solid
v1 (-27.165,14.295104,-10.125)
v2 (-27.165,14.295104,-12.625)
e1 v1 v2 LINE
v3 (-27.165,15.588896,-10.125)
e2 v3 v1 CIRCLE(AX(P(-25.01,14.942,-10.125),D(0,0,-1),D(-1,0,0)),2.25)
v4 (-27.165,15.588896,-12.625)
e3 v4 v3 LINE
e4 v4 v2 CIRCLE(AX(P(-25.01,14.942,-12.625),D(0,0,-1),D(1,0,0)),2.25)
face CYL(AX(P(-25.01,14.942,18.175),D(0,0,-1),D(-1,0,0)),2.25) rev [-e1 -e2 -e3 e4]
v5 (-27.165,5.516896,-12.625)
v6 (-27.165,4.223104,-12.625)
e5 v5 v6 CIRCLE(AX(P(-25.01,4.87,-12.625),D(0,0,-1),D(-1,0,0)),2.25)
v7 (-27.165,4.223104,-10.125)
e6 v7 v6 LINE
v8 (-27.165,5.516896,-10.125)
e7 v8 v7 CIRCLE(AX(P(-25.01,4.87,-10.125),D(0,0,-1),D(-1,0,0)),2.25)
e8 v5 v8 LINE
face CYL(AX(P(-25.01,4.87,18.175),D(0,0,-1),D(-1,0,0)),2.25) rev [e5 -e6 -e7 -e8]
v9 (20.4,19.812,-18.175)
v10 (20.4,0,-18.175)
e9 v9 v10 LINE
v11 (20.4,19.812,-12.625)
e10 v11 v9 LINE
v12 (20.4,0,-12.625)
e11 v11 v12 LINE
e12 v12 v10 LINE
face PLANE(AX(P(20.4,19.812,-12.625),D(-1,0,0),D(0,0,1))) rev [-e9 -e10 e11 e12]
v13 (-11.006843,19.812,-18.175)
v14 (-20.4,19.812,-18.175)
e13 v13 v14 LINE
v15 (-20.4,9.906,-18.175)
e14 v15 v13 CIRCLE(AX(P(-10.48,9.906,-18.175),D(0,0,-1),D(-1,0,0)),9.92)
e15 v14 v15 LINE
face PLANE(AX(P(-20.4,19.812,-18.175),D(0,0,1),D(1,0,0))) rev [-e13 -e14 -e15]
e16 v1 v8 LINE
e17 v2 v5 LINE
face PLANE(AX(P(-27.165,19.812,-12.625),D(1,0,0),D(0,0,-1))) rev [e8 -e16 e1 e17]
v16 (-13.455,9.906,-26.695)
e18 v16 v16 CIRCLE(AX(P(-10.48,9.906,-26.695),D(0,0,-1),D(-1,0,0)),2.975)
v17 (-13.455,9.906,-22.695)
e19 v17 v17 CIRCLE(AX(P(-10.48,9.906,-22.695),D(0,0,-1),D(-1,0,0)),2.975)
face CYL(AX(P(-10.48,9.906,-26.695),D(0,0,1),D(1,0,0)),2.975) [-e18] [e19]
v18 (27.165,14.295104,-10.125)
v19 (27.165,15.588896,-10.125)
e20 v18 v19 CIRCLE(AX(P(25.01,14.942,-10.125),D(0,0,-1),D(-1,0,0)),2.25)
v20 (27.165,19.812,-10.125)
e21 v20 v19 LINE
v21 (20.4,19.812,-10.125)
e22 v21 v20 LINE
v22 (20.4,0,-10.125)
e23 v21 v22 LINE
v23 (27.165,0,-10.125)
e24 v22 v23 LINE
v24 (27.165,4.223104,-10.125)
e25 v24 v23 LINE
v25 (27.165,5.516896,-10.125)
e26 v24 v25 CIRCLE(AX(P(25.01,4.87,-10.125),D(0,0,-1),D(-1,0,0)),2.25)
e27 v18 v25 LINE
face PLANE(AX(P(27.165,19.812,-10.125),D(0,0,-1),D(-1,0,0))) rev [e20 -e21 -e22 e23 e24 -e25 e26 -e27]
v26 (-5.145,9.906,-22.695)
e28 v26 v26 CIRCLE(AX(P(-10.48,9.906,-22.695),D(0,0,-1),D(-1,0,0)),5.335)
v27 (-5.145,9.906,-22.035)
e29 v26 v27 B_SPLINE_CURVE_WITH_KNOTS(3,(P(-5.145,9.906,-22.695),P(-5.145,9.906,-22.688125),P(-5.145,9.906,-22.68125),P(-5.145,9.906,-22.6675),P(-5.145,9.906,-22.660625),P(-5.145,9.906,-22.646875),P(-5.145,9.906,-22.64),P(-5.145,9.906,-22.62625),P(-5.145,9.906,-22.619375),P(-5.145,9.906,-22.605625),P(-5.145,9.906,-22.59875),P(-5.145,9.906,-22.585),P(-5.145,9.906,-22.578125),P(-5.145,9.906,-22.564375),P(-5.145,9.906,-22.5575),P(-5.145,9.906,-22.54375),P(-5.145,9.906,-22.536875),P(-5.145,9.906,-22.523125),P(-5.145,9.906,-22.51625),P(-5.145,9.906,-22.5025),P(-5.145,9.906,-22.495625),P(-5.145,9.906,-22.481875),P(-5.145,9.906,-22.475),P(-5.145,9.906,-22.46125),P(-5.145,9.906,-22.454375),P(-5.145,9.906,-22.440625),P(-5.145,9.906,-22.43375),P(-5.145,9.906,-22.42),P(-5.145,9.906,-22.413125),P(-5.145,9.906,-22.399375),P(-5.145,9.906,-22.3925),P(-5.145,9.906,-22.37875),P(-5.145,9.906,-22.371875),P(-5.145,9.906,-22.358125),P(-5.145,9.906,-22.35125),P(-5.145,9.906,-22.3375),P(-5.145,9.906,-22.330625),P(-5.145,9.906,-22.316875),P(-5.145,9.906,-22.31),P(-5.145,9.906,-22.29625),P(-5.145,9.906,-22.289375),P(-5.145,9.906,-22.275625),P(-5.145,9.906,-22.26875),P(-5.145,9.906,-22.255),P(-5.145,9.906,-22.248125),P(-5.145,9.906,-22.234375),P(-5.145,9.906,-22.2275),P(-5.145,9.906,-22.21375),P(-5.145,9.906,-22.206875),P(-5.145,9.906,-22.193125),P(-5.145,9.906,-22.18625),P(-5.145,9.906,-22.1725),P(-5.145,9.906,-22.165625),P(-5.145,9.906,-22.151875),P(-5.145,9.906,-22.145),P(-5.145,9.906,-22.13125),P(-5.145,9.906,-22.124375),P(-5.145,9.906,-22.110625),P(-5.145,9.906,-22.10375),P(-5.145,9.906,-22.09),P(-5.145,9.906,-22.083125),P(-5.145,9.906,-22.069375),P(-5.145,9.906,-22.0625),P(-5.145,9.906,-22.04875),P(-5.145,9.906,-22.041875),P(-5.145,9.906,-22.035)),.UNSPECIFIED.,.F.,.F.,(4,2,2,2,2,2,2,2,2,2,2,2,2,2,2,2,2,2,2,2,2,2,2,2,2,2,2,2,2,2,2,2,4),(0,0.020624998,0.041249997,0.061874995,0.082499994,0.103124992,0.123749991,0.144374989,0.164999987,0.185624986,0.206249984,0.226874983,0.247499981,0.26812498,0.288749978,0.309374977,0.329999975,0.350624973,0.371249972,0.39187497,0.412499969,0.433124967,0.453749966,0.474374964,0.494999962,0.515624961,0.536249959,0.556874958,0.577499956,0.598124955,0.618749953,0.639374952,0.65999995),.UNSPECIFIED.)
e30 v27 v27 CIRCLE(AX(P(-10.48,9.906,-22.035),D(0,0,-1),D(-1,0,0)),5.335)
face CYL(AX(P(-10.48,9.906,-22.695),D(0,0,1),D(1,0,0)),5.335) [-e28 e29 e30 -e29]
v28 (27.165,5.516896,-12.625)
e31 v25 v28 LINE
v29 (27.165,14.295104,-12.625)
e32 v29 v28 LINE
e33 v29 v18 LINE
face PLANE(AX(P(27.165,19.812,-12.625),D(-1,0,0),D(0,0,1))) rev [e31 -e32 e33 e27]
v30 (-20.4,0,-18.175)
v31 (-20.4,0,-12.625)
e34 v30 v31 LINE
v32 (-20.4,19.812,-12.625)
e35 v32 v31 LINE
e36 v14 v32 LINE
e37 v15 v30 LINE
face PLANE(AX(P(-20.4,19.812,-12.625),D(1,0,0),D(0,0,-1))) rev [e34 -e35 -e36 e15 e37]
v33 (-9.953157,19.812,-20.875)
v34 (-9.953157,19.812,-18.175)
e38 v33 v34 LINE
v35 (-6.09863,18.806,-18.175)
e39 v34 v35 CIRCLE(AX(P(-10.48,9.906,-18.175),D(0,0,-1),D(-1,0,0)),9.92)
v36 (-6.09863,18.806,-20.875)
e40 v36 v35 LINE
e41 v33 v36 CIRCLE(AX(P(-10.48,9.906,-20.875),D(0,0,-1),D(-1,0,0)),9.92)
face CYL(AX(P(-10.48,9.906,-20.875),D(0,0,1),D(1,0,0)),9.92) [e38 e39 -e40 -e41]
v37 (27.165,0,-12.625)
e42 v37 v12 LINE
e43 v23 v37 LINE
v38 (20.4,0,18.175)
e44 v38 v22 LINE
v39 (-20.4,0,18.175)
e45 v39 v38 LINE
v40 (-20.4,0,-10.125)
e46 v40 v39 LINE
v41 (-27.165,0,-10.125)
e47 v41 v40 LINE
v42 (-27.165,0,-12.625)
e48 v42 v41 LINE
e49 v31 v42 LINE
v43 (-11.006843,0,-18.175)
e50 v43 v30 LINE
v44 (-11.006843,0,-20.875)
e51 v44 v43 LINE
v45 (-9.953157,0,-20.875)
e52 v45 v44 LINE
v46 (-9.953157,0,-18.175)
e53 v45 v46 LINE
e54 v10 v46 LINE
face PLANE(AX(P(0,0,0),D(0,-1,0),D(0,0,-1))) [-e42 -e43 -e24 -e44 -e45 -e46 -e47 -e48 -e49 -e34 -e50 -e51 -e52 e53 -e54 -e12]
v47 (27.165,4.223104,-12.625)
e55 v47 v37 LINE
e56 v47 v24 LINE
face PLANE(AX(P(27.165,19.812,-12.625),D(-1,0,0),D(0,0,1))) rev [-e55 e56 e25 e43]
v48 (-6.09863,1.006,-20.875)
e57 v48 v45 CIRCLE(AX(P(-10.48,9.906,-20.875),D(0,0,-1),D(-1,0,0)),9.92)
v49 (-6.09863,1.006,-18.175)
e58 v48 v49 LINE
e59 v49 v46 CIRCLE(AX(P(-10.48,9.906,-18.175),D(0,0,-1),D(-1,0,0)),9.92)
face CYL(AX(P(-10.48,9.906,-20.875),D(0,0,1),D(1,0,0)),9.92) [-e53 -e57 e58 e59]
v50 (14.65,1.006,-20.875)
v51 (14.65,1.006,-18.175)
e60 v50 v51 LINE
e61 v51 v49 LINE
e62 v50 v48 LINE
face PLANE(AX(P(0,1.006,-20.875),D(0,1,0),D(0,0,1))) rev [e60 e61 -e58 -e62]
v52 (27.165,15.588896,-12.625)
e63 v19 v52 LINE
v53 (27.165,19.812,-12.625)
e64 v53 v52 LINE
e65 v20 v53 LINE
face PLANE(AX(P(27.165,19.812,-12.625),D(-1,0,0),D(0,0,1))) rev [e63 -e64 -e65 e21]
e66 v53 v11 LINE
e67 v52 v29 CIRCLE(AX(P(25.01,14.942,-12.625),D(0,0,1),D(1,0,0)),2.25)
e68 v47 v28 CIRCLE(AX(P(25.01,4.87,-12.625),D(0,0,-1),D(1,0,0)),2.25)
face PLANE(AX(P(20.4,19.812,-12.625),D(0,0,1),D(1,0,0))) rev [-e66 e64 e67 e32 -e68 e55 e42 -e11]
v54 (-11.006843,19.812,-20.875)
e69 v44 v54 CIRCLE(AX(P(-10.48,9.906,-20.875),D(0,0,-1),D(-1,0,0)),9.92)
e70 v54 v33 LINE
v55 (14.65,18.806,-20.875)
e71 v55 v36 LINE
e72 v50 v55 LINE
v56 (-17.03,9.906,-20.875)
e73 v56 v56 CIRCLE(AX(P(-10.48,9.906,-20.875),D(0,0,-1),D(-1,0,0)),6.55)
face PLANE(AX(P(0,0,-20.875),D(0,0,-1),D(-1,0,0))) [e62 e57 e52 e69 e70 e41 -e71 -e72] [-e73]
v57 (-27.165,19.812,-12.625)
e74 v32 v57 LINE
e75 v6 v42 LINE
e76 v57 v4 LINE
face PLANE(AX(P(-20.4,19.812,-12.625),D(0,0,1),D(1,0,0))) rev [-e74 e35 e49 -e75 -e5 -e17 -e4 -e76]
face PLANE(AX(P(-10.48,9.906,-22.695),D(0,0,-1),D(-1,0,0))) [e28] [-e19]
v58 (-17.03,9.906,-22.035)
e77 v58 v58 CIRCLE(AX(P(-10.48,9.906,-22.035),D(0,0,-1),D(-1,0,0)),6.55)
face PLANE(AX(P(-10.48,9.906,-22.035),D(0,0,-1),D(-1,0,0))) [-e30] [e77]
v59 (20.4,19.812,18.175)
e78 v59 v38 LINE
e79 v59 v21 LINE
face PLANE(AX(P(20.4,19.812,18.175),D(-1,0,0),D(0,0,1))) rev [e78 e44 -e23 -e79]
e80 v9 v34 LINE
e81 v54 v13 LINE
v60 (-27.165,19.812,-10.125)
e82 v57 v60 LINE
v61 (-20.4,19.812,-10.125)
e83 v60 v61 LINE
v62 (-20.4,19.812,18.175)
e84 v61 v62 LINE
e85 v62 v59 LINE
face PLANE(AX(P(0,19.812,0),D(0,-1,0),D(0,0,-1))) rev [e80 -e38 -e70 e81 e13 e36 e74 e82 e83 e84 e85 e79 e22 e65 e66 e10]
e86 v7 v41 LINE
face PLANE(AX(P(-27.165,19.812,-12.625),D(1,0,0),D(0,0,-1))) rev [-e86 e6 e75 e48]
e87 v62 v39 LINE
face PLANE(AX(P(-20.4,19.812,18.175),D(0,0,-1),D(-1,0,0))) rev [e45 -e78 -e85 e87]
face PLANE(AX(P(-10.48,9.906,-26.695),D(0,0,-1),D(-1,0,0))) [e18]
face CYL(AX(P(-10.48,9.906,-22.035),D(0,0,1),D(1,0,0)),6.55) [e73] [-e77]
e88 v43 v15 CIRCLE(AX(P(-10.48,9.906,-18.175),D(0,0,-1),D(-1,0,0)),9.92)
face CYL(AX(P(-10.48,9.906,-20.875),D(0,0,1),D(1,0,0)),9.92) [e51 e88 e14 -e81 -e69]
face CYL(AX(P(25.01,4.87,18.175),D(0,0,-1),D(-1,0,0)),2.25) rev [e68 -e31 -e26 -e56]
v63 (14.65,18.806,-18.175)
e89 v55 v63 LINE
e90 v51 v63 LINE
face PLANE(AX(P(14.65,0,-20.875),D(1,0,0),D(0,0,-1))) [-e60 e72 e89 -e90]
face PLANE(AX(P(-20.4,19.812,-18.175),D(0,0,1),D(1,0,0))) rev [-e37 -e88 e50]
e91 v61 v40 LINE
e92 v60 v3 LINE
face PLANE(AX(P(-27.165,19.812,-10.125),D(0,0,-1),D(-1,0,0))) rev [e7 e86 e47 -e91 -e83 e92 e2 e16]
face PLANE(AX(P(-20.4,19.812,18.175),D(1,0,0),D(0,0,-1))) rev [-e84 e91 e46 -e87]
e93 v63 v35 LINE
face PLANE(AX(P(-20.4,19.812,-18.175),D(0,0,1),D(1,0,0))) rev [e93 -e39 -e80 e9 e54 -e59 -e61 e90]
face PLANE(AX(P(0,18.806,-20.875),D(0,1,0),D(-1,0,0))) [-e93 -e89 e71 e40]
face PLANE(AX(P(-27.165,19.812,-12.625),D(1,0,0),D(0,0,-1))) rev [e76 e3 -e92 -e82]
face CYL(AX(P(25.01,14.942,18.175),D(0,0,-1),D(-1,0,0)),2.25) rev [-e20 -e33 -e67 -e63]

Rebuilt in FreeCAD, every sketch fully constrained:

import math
import FreeCAD as App
import Part
import Sketcher
Q = App.Units.Quantity

doc = App.newDocument("Part")
body = doc.addObject("PartDesign::Body", "Body")

# Sketch on XZ plane
sketch1 = body.newObject("Sketcher::SketchObject", "Sketch")
sketch1.AttachmentSupport = (doc.getObject("XZ_Plane"), [""])
sketch1.MapMode = "FlatFace"
sketch1.addGeometry([
    Part.LineSegment(App.Vector(-20.4, 18.175, 0), App.Vector(20.4, 18.175, 0)),  # 0
    Part.LineSegment(App.Vector(20.4, 18.175, 0), App.Vector(20.4, -10.125, 0)),  # 1
    Part.LineSegment(App.Vector(20.4, -10.125, 0), App.Vector(27.165, -10.125, 0)),  # 2
    Part.LineSegment(App.Vector(27.165, -10.125, 0), App.Vector(27.165, -12.625, 0)),  # 3
    Part.LineSegment(App.Vector(27.165, -12.625, 0), App.Vector(20.4, -12.625, 0)),  # 4
    Part.LineSegment(App.Vector(20.4, -12.625, 0), App.Vector(20.4, -18.175, 0)),  # 5
    Part.LineSegment(App.Vector(20.4, -18.175, 0), App.Vector(-20.4, -18.175, 0)),  # 6
    Part.LineSegment(App.Vector(-20.4, -18.175, 0), App.Vector(-20.4, -12.625, 0)),  # 7
    Part.LineSegment(App.Vector(-20.4, -12.625, 0), App.Vector(-27.165, -12.625, 0)),  # 8
    Part.LineSegment(App.Vector(-27.165, -12.625, 0), App.Vector(-27.165, -10.125, 0)),  # 9
    Part.LineSegment(App.Vector(-27.165, -10.125, 0), App.Vector(-20.4, -10.125, 0)),  # 10
    Part.LineSegment(App.Vector(-20.4, -10.125, 0), App.Vector(-20.4, 18.175, 0)),  # 11
], False)
sketch1.addConstraint([
    Sketcher.Constraint("Coincident", 0, 2, 1, 1),
    Sketcher.Constraint("Coincident", 1, 2, 2, 1),
    Sketcher.Constraint("Coincident", 2, 2, 3, 1),
    Sketcher.Constraint("Coincident", 3, 2, 4, 1),
    Sketcher.Constraint("Coincident", 4, 2, 5, 1),
    Sketcher.Constraint("Coincident", 5, 2, 6, 1),
    Sketcher.Constraint("Coincident", 6, 2, 7, 1),
    Sketcher.Constraint("Coincident", 7, 2, 8, 1),
    Sketcher.Constraint("Coincident", 8, 2, 9, 1),
    Sketcher.Constraint("Coincident", 9, 2, 10, 1),
    Sketcher.Constraint("Coincident", 10, 2, 11, 1),
    Sketcher.Constraint("Coincident", 11, 2, 0, 1),
    Sketcher.Constraint("Horizontal", 0),
    Sketcher.Constraint("Vertical", 1),
    Sketcher.Constraint("Horizontal", 2),
    Sketcher.Constraint("Vertical", 3),
    Sketcher.Constraint("Horizontal", 4),
    Sketcher.Constraint("Vertical", 5),
    Sketcher.Constraint("Horizontal", 6),
    Sketcher.Constraint("Vertical", 7),
    Sketcher.Constraint("Horizontal", 8),
    Sketcher.Constraint("Vertical", 9),
    Sketcher.Constraint("Horizontal", 10),
    Sketcher.Constraint("Vertical", 11),
    Sketcher.Constraint("Symmetric", 0, 2, 6, 2, -1, 1),
    Sketcher.Constraint("Symmetric", 4, 2, 7, 2, -2),
    Sketcher.Constraint("Symmetric", 2, 2, 9, 2, -2),
    Sketcher.Constraint("Vertical", 7, 2, 10, 2),
    Sketcher.Constraint("DistanceX", 0, 1, 0, 2, Q("40.8 mm")),
    Sketcher.Constraint("DistanceY", 1, 2, 1, 1, Q("28.3 mm")),
    Sketcher.Constraint("DistanceY", 3, 2, 3, 1, Q("2.5 mm")),
    Sketcher.Constraint("DistanceY", 5, 2, 5, 1, Q("5.55 mm")),
    Sketcher.Constraint("DistanceX", 2, 1, 2, 2, Q("6.765 mm")),
])
pad1 = body.newObject("PartDesign::Pad", "Pad")
pad1.Profile = sketch1
pad1.Length = 19.812
pad1.Reversed = True

# Sketch on XY plane
sketch2 = body.newObject("Sketcher::SketchObject", "Sketch001")
sketch2.AttachmentSupport = (doc.getObject("XY_Plane"), [""])
sketch2.MapMode = "FlatFace"
sketch2.AttachmentOffset = App.Placement(App.Vector(0, 0, -12.625), App.Rotation())
sketch2.addGeometry([
    Part.Circle(App.Vector(-25.01, 4.87, 0), App.Vector(0, 0, 1), 2.25),
    Part.Circle(App.Vector(-25.01, 14.942, 0), App.Vector(0, 0, 1), 2.25),
    Part.Circle(App.Vector(25.01, 4.87, 0), App.Vector(0, 0, 1), 2.25),
    Part.Circle(App.Vector(25.01, 14.942, 0), App.Vector(0, 0, 1), 2.25),
], False)
sketch2.addConstraint([
    Sketcher.Constraint("Equal", 0, 1),
    Sketcher.Constraint("Equal", 1, 2),
    Sketcher.Constraint("Equal", 2, 3),
    Sketcher.Constraint("Symmetric", 0, 3, 2, 3, -2),
    Sketcher.Constraint("Symmetric", 1, 3, 3, 3, -2),
    Sketcher.Constraint("Vertical", 0, 3, 1, 3),
    Sketcher.Constraint("Diameter", 0, Q("4.5 mm")),
    Sketcher.Constraint("DistanceX", 0, 3, -1, 1, Q("25.01 mm")),
    Sketcher.Constraint("DistanceY", -1, 1, 0, 3, Q("4.87 mm")),
    Sketcher.Constraint("DistanceY", -1, 1, 1, 3, Q("14.942 mm")),
])
pocket1 = body.newObject("PartDesign::Pocket", "Pocket")
pocket1.Profile = sketch2
pocket1.Type = "ThroughAll"
pocket1.Reversed = True

# Sketch on XY plane
sketch3 = body.newObject("Sketcher::SketchObject", "Sketch002")
sketch3.AttachmentSupport = (doc.getObject("XY_Plane"), [""])
sketch3.MapMode = "FlatFace"
sketch3.AttachmentOffset = App.Placement(App.Vector(0, 0, -18.175), App.Rotation())
sketch3.addGeometry([
    Part.LineSegment(App.Vector(14.65, 18.806, 0), App.Vector(14.65, 1.006, 0)),  # 0
    Part.LineSegment(App.Vector(14.65, 1.006, 0), App.Vector(-6.09863, 1.006, 0)),  # 1
    Part.ArcOfCircle(Part.Circle(App.Vector(-10.48, 9.906, 0), App.Vector(0, 0, 1), 9.92), math.radians(-86.955634), math.radians(-63.789497)),  # 2
    Part.LineSegment(App.Vector(-9.953157, 0, 0), App.Vector(-11.006843, 0, 0)),  # 3
    Part.ArcOfCircle(Part.Circle(App.Vector(-10.48, 9.906, 0), App.Vector(0, 0, 1), 9.92), math.radians(-180), math.radians(-93.044366)),  # 4
    Part.ArcOfCircle(Part.Circle(App.Vector(-10.48, 9.906, 0), App.Vector(0, 0, 1), 9.92), math.radians(93.044366), math.radians(180)),  # 5
    Part.LineSegment(App.Vector(-11.006843, 19.812, 0), App.Vector(-9.953157, 19.812, 0)),  # 6
    Part.ArcOfCircle(Part.Circle(App.Vector(-10.48, 9.906, 0), App.Vector(0, 0, 1), 9.92), math.radians(63.789497), math.radians(86.955634)),  # 7
    Part.LineSegment(App.Vector(-6.09863, 18.806, 0), App.Vector(14.65, 18.806, 0)),  # 8
], False)
sketch3.addConstraint([
    Sketcher.Constraint("Coincident", 0, 2, 1, 1),
    Sketcher.Constraint("Coincident", 1, 2, 2, 2),
    Sketcher.Constraint("Coincident", 2, 1, 3, 1),
    Sketcher.Constraint("Coincident", 3, 2, 4, 2),
    Sketcher.Constraint("Tangent", 4, 1, 5, 2),
    Sketcher.Constraint("Coincident", 5, 1, 6, 1),
    Sketcher.Constraint("Coincident", 6, 2, 7, 2),
    Sketcher.Constraint("Coincident", 7, 1, 8, 1),
    Sketcher.Constraint("Coincident", 8, 2, 0, 1),
    Sketcher.Constraint("Vertical", 0),
    Sketcher.Constraint("Horizontal", 1),
    Sketcher.Constraint("Horizontal", 3),
    Sketcher.Constraint("Horizontal", 6),
    Sketcher.Constraint("Horizontal", 8),
    Sketcher.Constraint("Coincident", 4, 3, 2, 3),
    Sketcher.Constraint("Coincident", 7, 3, 2, 3),
    Sketcher.Constraint("Equal", 2, 4),
    Sketcher.Constraint("Equal", 4, 5),
    Sketcher.Constraint("Equal", 5, 7),
    Sketcher.Constraint("PointOnObject", 2, 1, -1),
    Sketcher.Constraint("Horizontal", 7, 3, 4, 1),
    Sketcher.Constraint("Vertical", 3, 2, 5, 1),
    Sketcher.Constraint("Vertical", 1, 2, 7, 1),
    Sketcher.Constraint("Radius", 2, Q("9.92 mm")),
    Sketcher.Constraint("DistanceY", 0, 2, 0, 1, Q("17.8 mm")),
    Sketcher.Constraint("DistanceX", 4, 1, -1, 1, Q("20.4 mm")),
    Sketcher.Constraint("DistanceX", -1, 1, 0, 2, Q("14.65 mm")),
    Sketcher.Constraint("DistanceY", -1, 1, 2, 3, Q("9.906 mm")),
])
pad2 = body.newObject("PartDesign::Pad", "Pad001")
pad2.Profile = sketch3
pad2.Length = 2.7
pad2.Reversed = True

# Sketch on XY plane
sketch4 = body.newObject("Sketcher::SketchObject", "Sketch003")
sketch4.AttachmentSupport = (doc.getObject("XY_Plane"), [""])
sketch4.MapMode = "FlatFace"
sketch4.AttachmentOffset = App.Placement(App.Vector(0, 0, -20.875), App.Rotation())
sketch4.addGeometry(Part.Circle(App.Vector(-10.48, 9.906, 0), App.Vector(0, 0, 1), 6.55), False)
sketch4.addConstraint([
    Sketcher.Constraint("Diameter", 0, Q("13.1 mm")),
    Sketcher.Constraint("DistanceX", 0, 3, -1, 1, Q("10.48 mm")),
    Sketcher.Constraint("DistanceY", -1, 1, 0, 3, Q("9.906 mm")),
])
pad3 = body.newObject("PartDesign::Pad", "Pad002")
pad3.Profile = sketch4
pad3.Length = 1.16
pad3.Reversed = True

# Sketch on XY plane
sketch5 = body.newObject("Sketcher::SketchObject", "Sketch004")
sketch5.AttachmentSupport = (doc.getObject("XY_Plane"), [""])
sketch5.MapMode = "FlatFace"
sketch5.AttachmentOffset = App.Placement(App.Vector(0, 0, -22.035), App.Rotation())
sketch5.addGeometry(Part.Circle(App.Vector(-10.48, 9.906, 0), App.Vector(0, 0, 1), 5.335), False)
sketch5.addConstraint([
    Sketcher.Constraint("Diameter", 0, Q("10.67 mm")),
    Sketcher.Constraint("DistanceX", 0, 3, -1, 1, Q("10.48 mm")),
    Sketcher.Constraint("DistanceY", -1, 1, 0, 3, Q("9.906 mm")),
])
pad4 = body.newObject("PartDesign::Pad", "Pad003")
pad4.Profile = sketch5
pad4.Length = 0.66
pad4.Reversed = True

# Sketch on XY plane
sketch6 = body.newObject("Sketcher::SketchObject", "Sketch005")
sketch6.AttachmentSupport = (doc.getObject("XY_Plane"), [""])
sketch6.MapMode = "FlatFace"
sketch6.AttachmentOffset = App.Placement(App.Vector(0, 0, -22.695), App.Rotation())
sketch6.addGeometry(Part.Circle(App.Vector(-10.48, 9.906, 0), App.Vector(0, 0, 1), 2.975), False)
sketch6.addConstraint([
    Sketcher.Constraint("Diameter", 0, Q("5.95 mm")),
    Sketcher.Constraint("DistanceX", 0, 3, -1, 1, Q("10.48 mm")),
    Sketcher.Constraint("DistanceY", -1, 1, 0, 3, Q("9.906 mm")),
])
pad5 = body.newObject("PartDesign::Pad", "Pad004")
pad5.Profile = sketch6
pad5.Length = 4
pad5.Reversed = True

doc.recompute()
